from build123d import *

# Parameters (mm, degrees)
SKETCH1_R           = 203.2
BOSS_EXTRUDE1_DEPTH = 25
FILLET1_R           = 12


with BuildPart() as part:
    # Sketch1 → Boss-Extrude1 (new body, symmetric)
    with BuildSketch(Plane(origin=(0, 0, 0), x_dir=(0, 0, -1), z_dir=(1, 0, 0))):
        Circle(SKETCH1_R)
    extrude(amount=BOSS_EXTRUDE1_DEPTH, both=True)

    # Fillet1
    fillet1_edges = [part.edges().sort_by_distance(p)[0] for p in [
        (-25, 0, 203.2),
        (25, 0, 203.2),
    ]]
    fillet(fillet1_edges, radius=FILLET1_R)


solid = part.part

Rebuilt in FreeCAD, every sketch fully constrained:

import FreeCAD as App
import Part
import Sketcher
from FreeCAD import Vector
Q = App.Units.Quantity


def edges_at(feature, points):
    """Names of the edges that pass closest to the given points."""
    edges = feature.Shape.Edges
    near = lambda p: min(range(len(edges)), key=lambda i: edges[i].distToShape(Part.Vertex(*p))[0])
    return sorted({f"Edge{near(p) + 1}" for p in points})

doc = App.newDocument("Part")
body = doc.addObject("PartDesign::Body", "Body")

# Sketch on YZ plane
sketch1 = doc.addObject("Sketcher::SketchObject", "Sketch")
body.addObject(sketch1)
sketch1.AttachmentSupport = (doc.YZ_Plane, [""])
sketch1.MapMode = "FlatFace"
sketch1.addGeometry(Part.Circle(Vector(0, 0, 0), Vector(0, 0, 1), 203), False)
sketch1.addConstraint(Sketcher.Constraint("Coincident", 0, 3, -1, 1))
sketch1.addConstraint(Sketcher.Constraint("Diameter", 0, Q("406.4 mm")))
pad1 = doc.addObject("PartDesign::Pad", "Pad")
body.addObject(pad1)
pad1.Profile = sketch1
pad1.Length = 50
pad1.Midplane = True
doc.recompute()

fillet = doc.addObject("PartDesign::Fillet", "Fillet")
body.addObject(fillet)
fillet.Base = (pad1, edges_at(pad1, [(-25, 0, 203.2), (25, 0, 203.2)]))
fillet.Radius = 12

doc.recompute()
